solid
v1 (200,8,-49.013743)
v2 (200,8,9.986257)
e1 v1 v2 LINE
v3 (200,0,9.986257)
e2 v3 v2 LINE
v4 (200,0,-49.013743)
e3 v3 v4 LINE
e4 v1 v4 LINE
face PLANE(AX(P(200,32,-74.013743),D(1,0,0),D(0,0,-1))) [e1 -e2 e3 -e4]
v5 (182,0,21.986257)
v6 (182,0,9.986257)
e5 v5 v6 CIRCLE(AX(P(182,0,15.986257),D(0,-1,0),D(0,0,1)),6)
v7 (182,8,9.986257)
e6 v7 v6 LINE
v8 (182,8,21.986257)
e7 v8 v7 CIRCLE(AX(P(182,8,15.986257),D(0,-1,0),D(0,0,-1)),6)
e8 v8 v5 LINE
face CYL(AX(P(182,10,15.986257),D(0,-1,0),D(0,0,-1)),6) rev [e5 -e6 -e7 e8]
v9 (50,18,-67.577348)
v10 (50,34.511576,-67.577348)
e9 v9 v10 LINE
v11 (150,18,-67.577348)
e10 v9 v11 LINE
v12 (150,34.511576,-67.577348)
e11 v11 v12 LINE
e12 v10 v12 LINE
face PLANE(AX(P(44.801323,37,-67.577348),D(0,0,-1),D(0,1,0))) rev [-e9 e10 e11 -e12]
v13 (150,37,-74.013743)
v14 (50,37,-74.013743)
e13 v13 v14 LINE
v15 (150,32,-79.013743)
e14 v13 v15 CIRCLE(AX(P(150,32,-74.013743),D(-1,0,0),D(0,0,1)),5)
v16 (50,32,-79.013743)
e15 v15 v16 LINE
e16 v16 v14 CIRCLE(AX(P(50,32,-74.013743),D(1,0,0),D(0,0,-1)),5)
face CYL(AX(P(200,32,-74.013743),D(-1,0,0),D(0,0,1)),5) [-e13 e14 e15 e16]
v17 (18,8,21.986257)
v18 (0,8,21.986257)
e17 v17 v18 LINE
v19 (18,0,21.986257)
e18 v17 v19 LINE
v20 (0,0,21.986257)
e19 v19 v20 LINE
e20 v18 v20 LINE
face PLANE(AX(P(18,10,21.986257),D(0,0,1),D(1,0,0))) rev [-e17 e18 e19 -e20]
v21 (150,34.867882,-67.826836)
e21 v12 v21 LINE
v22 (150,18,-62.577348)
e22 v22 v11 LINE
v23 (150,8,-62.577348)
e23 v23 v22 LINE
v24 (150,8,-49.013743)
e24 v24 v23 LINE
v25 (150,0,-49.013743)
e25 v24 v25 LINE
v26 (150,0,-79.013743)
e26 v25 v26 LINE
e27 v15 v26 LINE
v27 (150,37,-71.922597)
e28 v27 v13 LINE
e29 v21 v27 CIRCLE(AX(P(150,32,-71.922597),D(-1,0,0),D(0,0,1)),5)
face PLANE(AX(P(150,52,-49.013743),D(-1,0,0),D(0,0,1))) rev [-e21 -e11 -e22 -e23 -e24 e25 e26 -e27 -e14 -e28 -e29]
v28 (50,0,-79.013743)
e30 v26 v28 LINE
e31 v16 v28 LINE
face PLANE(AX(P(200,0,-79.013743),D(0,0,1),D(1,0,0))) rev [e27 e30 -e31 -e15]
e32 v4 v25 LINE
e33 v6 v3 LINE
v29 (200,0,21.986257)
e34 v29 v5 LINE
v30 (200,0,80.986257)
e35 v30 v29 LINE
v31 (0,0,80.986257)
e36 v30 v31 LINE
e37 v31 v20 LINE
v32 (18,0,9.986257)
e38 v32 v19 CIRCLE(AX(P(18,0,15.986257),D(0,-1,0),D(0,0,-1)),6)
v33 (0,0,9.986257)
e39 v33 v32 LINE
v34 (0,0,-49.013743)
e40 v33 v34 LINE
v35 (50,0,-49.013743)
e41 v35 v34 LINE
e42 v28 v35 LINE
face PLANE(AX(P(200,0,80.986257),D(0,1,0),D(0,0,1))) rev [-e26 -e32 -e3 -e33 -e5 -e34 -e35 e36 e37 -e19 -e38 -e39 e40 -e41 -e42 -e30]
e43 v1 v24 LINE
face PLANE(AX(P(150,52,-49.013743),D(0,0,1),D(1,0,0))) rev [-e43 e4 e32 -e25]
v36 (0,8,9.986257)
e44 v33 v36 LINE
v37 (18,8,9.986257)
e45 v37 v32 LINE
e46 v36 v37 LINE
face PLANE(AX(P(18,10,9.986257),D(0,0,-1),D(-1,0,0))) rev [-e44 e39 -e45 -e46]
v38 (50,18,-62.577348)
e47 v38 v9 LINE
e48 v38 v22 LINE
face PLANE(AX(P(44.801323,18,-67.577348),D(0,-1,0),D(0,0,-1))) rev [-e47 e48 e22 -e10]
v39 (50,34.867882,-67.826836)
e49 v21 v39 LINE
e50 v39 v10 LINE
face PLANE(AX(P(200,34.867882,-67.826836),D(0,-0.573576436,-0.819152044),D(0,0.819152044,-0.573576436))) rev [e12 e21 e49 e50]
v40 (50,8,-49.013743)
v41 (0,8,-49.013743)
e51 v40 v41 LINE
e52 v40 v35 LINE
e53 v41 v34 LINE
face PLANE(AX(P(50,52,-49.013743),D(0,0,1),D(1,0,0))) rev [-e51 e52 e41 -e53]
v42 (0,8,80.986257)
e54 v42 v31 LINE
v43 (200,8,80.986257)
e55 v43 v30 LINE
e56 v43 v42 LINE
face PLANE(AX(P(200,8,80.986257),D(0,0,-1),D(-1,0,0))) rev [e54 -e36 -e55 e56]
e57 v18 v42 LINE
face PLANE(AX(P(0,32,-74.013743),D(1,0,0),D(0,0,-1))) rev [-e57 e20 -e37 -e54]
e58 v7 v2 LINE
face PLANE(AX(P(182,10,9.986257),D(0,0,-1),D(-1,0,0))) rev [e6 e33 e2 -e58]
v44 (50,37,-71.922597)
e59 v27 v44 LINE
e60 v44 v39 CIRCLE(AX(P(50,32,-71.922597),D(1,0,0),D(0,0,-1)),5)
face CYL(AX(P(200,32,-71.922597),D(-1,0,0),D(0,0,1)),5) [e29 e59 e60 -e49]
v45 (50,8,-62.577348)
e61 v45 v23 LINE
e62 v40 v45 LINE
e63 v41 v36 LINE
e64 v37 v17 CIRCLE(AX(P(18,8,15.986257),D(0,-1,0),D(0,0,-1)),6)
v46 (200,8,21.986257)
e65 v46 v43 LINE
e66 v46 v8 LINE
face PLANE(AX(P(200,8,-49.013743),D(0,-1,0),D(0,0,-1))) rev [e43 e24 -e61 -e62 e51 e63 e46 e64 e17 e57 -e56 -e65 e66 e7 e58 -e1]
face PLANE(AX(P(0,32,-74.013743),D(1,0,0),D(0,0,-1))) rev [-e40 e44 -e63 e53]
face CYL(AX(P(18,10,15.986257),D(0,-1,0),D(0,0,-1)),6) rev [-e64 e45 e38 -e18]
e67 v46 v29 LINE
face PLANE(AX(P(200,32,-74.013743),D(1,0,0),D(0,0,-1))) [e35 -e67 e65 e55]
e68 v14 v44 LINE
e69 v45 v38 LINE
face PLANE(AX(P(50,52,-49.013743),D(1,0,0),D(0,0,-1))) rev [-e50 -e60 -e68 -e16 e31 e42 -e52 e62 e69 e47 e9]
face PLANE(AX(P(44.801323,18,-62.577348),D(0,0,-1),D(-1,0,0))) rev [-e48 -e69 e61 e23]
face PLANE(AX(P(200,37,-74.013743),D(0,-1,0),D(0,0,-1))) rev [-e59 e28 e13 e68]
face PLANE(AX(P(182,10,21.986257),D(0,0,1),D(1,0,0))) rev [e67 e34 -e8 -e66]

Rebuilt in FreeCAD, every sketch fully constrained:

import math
import FreeCAD as App
import Part
import Sketcher
Q = App.Units.Quantity


def add_polygon(sketch, points):
    """Adds a closed chain of lines whose ends are joined by coincident constraints."""
    first, n = sketch.GeometryCount, len(points)
    for a, b in zip(points, points[1:] + points[:1]):
        sketch.addGeometry(Part.LineSegment(App.Vector(*a, 0), App.Vector(*b, 0)), False)
    for i in range(n):
        sketch.addConstraint(Sketcher.Constraint("Coincident", first + i, 2, first + (i + 1) % n, 1))

doc = App.newDocument("Part")
params = doc.addObject("Spreadsheet::Sheet", "Params")
for row, (alias, value) in enumerate([
    ("sketch1_radius", "5 mm"),
    ("sketch1_width", "32 mm"),
    ("sketch1_width2", "8 mm"),
    ("sketch1_height", "160 mm"),
    ("sketch1_height2", "130 mm"),
    ("pad1_length", "200 mm"),
    ("sketch2_width", "50 mm"),
    ("sketch2_height", "30 mm"),
    ("pocket1_length", "52 mm"),
    ("sketch3_radius", "6 mm"),
    ("sketch3_width", "18 mm"),
    ("pocket2_length", "10 mm"),
    ("sketch4_width", "19 mm"),
    ("sketch4_width2", "29 mm"),
    ("sketch4_height", "5 mm"),
    ("pocket3_length", "105.198677 mm"),
], start=1):
    params.set(f"A{row}", alias)
    params.set(f"B{row}", "=" + value)
    params.setAlias(f"B{row}", alias)

body = doc.addObject("PartDesign::Body", "Body")

sketch1 = body.newObject("Sketcher::SketchObject", "Sketch")
sketch1.AttachmentSupport = (doc.getObject("YZ_Plane"), [""])
sketch1.MapMode = "FlatFace"
sketch1.addGeometry([
    Part.LineSegment(App.Vector(0, 80.986257, 0), App.Vector(0, -79.013743, 0)),
    Part.LineSegment(App.Vector(0, -79.013743, 0), App.Vector(32, -79.013743, 0)),
    Part.ArcOfCircle(Part.Circle(App.Vector(32, -74.013743, 0), App.Vector(0, 0, 1), 5), math.radians(-90), math.radians(0)),
    Part.LineSegment(App.Vector(37, -74.013743, 0), App.Vector(37, -71.922597, 0)),
    Part.ArcOfCircle(Part.Circle(App.Vector(32, -71.922597, 0), App.Vector(0, 0, 1), 5), math.radians(0), math.radians(55)),
    Part.LineSegment(App.Vector(34.867882, -67.826836, 0), App.Vector(8, -49.013743, 0)),
    Part.LineSegment(App.Vector(8, -49.013743, 0), App.Vector(8, 80.986257, 0)),
    Part.LineSegment(App.Vector(8, 80.986257, 0), App.Vector(0, 80.986257, 0)),
], False)
sketch1.addConstraint([
    Sketcher.Constraint("Coincident", 0, 2, 1, 1),
    Sketcher.Constraint("Tangent", 1, 2, 2, 1),
    Sketcher.Constraint("Tangent", 2, 2, 3, 1),
    Sketcher.Constraint("Tangent", 3, 2, 4, 1),
    Sketcher.Constraint("Tangent", 4, 2, 5, 1),
    Sketcher.Constraint("Coincident", 5, 2, 6, 1),
    Sketcher.Constraint("Coincident", 6, 2, 7, 1),
    Sketcher.Constraint("Coincident", 7, 2, 0, 1),
    Sketcher.Constraint("Vertical", 0),
    Sketcher.Constraint("Horizontal", 1),
    Sketcher.Constraint("Vertical", 3),
    Sketcher.Constraint("Vertical", 6),
    Sketcher.Constraint("Horizontal", 7),
    Sketcher.Constraint("Equal", 2, 4),
    Sketcher.Constraint("PointOnObject", 0, 2, -2),
    Sketcher.Constraint("Radius", 2, Q("5 mm")),
    Sketcher.Constraint("DistanceX", 1, 1, 1, 2, Q("32 mm")),
    Sketcher.Constraint("DistanceX", 7, 2, 7, 1, Q("8 mm")),
    Sketcher.Constraint("DistanceY", 0, 2, 0, 1, Q("160 mm")),
    Sketcher.Constraint("DistanceY", 6, 1, 6, 2, Q("130 mm")),
    Sketcher.Constraint("Angle", 5, Q("145 deg")),
    Sketcher.Constraint("DistanceY", 2, 3, -1, 1, Q("74.013743 mm")),
])
sketch1.setExpression("Constraints[15]", "Params.sketch1_radius")
sketch1.setExpression("Constraints[16]", "Params.sketch1_width")
sketch1.setExpression("Constraints[17]", "Params.sketch1_width2")
sketch1.setExpression("Constraints[18]", "Params.sketch1_height")
sketch1.setExpression("Constraints[19]", "Params.sketch1_height2")
pad1 = body.newObject("PartDesign::Pad", "Pad")
pad1.Profile = sketch1
pad1.setExpression("Length", "Params.pad1_length")

sketch2 = body.newObject("Sketcher::SketchObject", "Sketch001")
sketch2.AttachmentSupport = (doc.getObject("XZ_Plane"), [""])
sketch2.MapMode = "FlatFace"
add_polygon(sketch2, [(0, -49.013743), (0, -79.013743), (50, -79.013743), (50, -49.013743)])
add_polygon(sketch2, [(150, -49.013743), (150, -79.013743), (200, -79.013743), (200, -49.013743)])
sketch2.addConstraint([
    Sketcher.Constraint("Vertical", 0),
    Sketcher.Constraint("Horizontal", 1),
    Sketcher.Constraint("Vertical", 2),
    Sketcher.Constraint("Horizontal", 3),
    Sketcher.Constraint("Vertical", 4),
    Sketcher.Constraint("Horizontal", 5),
    Sketcher.Constraint("Vertical", 6),
    Sketcher.Constraint("Horizontal", 7),
    Sketcher.Constraint("PointOnObject", 0, 2, -2),
    Sketcher.Constraint("Horizontal", 1, 2, 4, 2),
    Sketcher.Constraint("Horizontal", 3, 2, 6, 2),
    Sketcher.Constraint("Equal", 3, 5),
    Sketcher.Constraint("DistanceX", 1, 1, 1, 2, Q("50 mm")),
    Sketcher.Constraint("DistanceY", 0, 2, 0, 1, Q("30 mm")),
    Sketcher.Constraint("DistanceX", -1, 1, 4, 2, Q("150 mm")),
    Sketcher.Constraint("DistanceY", 0, 2, -1, 1, Q("79.013743 mm")),
])
sketch2.setExpression("Constraints[20]", "Params.sketch2_width")
sketch2.setExpression("Constraints[21]", "Params.sketch2_height")
pocket1 = body.newObject("PartDesign::Pocket", "Pocket")
pocket1.Profile = sketch2
pocket1.setExpression("Length", "Params.pocket1_length")

sketch3 = body.newObject("Sketcher::SketchObject", "Sketch002")
sketch3.AttachmentSupport = (doc.getObject("XZ_Plane"), [""])
sketch3.MapMode = "FlatFace"
sketch3.addGeometry([
    Part.LineSegment(App.Vector(0, 9.986257, 0), App.Vector(18, 9.986257, 0)),
    Part.ArcOfCircle(Part.Circle(App.Vector(18, 15.986257, 0), App.Vector(0, 0, 1), 6), math.radians(-90), math.radians(90)),
    Part.LineSegment(App.Vector(18, 21.986257, 0), App.Vector(0, 21.986257, 0)),
    Part.ArcOfCircle(Part.Circle(App.Vector(0, 15.986257, 0), App.Vector(0, 0, 1), 6), math.radians(90), math.radians(270)),
    Part.LineSegment(App.Vector(182, 9.986257, 0), App.Vector(200, 9.986257, 0)),
    Part.ArcOfCircle(Part.Circle(App.Vector(200, 15.986257, 0), App.Vector(0, 0, 1), 6), math.radians(-90), math.radians(90)),
    Part.LineSegment(App.Vector(200, 21.986257, 0), App.Vector(182, 21.986257, 0)),
    Part.ArcOfCircle(Part.Circle(App.Vector(182, 15.986257, 0), App.Vector(0, 0, 1), 6), math.radians(90), math.radians(270)),
], False)
sketch3.addConstraint([
    Sketcher.Constraint("Tangent", 0, 2, 1, 1),
    Sketcher.Constraint("Tangent", 1, 2, 2, 1),
    Sketcher.Constraint("Tangent", 2, 2, 3, 1),
    Sketcher.Constraint("Tangent", 3, 2, 0, 1),
    Sketcher.Constraint("Tangent", 4, 2, 5, 1),
    Sketcher.Constraint("Tangent", 5, 2, 6, 1),
    Sketcher.Constraint("Tangent", 6, 2, 7, 1),
    Sketcher.Constraint("Tangent", 7, 2, 4, 1),
    Sketcher.Constraint("Horizontal", 0),
    Sketcher.Constraint("Horizontal", 2),
    Sketcher.Constraint("Horizontal", 4),
    Sketcher.Constraint("Horizontal", 6),
    Sketcher.Constraint("Equal", 3, 5),
    Sketcher.Constraint("PointOnObject", 3, 3, -2),
    Sketcher.Constraint("Horizontal", 3, 3, 5, 3),
    Sketcher.Constraint("Equal", 2, 4),
    Sketcher.Constraint("Radius", 1, Q("6 mm")),
    Sketcher.Constraint("DistanceX", 0, 1, 0, 2, Q("18 mm")),
    Sketcher.Constraint("DistanceX", -1, 1, 5, 3, Q("200 mm")),
    Sketcher.Constraint("DistanceY", -1, 1, 1, 3, Q("15.986257 mm")),
])
sketch3.setExpression("Constraints[16]", "Params.sketch3_radius")
sketch3.setExpression("Constraints[17]", "Params.sketch3_width")
pocket2 = body.newObject("PartDesign::Pocket", "Pocket001")
pocket2.Profile = sketch3
pocket2.setExpression("Length", "Params.pocket2_length")

sketch4 = body.newObject("Sketcher::SketchObject", "Sketch003")
sketch4.AttachmentSupport = (doc.getObject("YZ_Plane"), [""])
sketch4.MapMode = "FlatFace"
sketch4.AttachmentOffset = App.Placement(App.Vector(0, 0, 150), App.Rotation())
add_polygon(sketch4, [(18, -67.577348), (37, -67.577348), (37, -49.013743), (8, -49.013743), (8, -62.577348), (18, -62.577348)])
sketch4.addConstraint([
    Sketcher.Constraint("Horizontal", 0),
    Sketcher.Constraint("Vertical", 1),
    Sketcher.Constraint("Horizontal", 2),
    Sketcher.Constraint("Vertical", 3),
    Sketcher.Constraint("Horizontal", 4),
    Sketcher.Constraint("Vertical", 5),
    Sketcher.Constraint("DistanceX", 0, 1, 0, 2, Q("19 mm")),
    Sketcher.Constraint("DistanceX", 2, 2, 2, 1, Q("29 mm")),
    Sketcher.Constraint("DistanceY", 5, 2, 5, 1, Q("5 mm")),
    Sketcher.Constraint("DistanceX", -1, 1, 0, 2, Q("37 mm")),
    Sketcher.Constraint("DistanceY", 1, 1, 1, 2, Q("18.563605 mm")),
    Sketcher.Constraint("DistanceY", 0, 2, -1, 1, Q("67.577348 mm")),
])
sketch4.setExpression("Constraints[12]", "Params.sketch4_width")
sketch4.setExpression("Constraints[13]", "Params.sketch4_width2")
sketch4.setExpression("Constraints[14]", "Params.sketch4_height")
pocket3 = body.newObject("PartDesign::Pocket", "Pocket002")
pocket3.Profile = sketch4
pocket3.setExpression("Length", "Params.pocket3_length")

doc.recompute()
